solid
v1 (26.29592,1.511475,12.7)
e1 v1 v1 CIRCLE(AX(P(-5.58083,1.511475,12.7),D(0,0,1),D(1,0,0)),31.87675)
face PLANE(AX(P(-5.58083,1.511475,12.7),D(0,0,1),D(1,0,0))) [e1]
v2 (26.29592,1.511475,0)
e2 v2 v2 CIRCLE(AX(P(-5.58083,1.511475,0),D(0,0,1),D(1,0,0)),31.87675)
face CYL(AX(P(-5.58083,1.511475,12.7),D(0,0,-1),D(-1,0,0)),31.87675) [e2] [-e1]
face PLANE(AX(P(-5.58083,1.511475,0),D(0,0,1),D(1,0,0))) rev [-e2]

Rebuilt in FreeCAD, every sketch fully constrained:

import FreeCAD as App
import Part
import Sketcher
from FreeCAD import Vector

doc = App.newDocument("Part")
params = doc.addObject("Spreadsheet::Sheet", "Params")
for row, (alias, value) in enumerate([
    ("pad1_length", "0.5 in"),
], start=1):
    params.set(f"A{row}", alias)
    params.set(f"B{row}", "=" + value)
    params.setAlias(f"B{row}", alias)

body = doc.addObject("PartDesign::Body", "Body")

sketch1 = body.newObject("Sketcher::SketchObject", "Sketch")
sketch1.AttachmentSupport = (doc.getObject("XY_Plane"), [""])
sketch1.MapMode = "FlatFace"
sketch1.addGeometry(Part.Circle(Vector(-5.58083, 1.511475, 0), Vector(0, 0, 1), 31.87675), False)
sketch1.addConstraint([
    Sketcher.Constraint("Diameter", 0, 63.753499),
    Sketcher.Constraint("DistanceX", 0, 3, -1, 1, 5.58083),
    Sketcher.Constraint("DistanceY", -1, 1, 0, 3, 1.511475),
])
pad1 = body.newObject("PartDesign::Pad", "Pad")
pad1.Profile = sketch1
pad1.setExpression("Length", "Params.pad1_length")

doc.recompute()
